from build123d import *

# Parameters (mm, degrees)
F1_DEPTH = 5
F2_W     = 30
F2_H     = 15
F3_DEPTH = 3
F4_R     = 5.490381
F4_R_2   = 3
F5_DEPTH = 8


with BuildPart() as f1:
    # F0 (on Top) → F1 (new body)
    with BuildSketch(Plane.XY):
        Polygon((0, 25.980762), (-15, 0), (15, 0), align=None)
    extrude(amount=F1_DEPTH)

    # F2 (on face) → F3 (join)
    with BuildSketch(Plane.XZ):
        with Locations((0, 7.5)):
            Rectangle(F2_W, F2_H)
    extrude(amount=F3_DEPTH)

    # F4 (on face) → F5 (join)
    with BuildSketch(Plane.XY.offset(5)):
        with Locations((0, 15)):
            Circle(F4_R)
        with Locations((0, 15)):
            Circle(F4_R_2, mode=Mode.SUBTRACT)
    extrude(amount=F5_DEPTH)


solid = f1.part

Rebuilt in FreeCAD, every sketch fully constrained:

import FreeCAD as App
import Part
import Sketcher

V = App.Vector
Q = App.Units.Quantity

doc = App.newDocument("Part")
body = doc.addObject("PartDesign::Body", "Body")

sketch1 = body.newObject("Sketcher::SketchObject", "Sketch")
sketch1.AttachmentSupport = (doc.getObject("XY_Plane"), [""])
sketch1.MapMode = "FlatFace"
sketch1.addGeometry(Part.LineSegment(V(0, 26, 0), V(-15, 0, 0)), False)
sketch1.addGeometry(Part.LineSegment(V(-15, 0, 0), V(15, 0, 0)), False)
sketch1.addGeometry(Part.LineSegment(V(15, 0, 0), V(0, 26, 0)), False)
sketch1.addConstraint(Sketcher.Constraint("Coincident", 0, 2, 1, 1))
sketch1.addConstraint(Sketcher.Constraint("Coincident", 1, 2, 2, 1))
sketch1.addConstraint(Sketcher.Constraint("Coincident", 2, 2, 0, 1))
sketch1.addConstraint(Sketcher.Constraint("Horizontal", 1))
sketch1.addConstraint(Sketcher.Constraint("Symmetric", 0, 2, 1, 2, -1, 1))
sketch1.addConstraint(Sketcher.Constraint("PointOnObject", 2, 2, -2))
sketch1.addConstraint(Sketcher.Constraint("DistanceX", 1, 1, 1, 2, Q("30 mm")))
sketch1.addConstraint(Sketcher.Constraint("Angle", 0, Q("-120 deg")))
pad1 = body.newObject("PartDesign::Pad", "Pad")
pad1.Profile = sketch1
pad1.Length = 5

sketch2 = body.newObject("Sketcher::SketchObject", "Sketch001")
sketch2.AttachmentSupport = (doc.getObject("XZ_Plane"), [""])
sketch2.MapMode = "FlatFace"
sketch2.addGeometry(Part.LineSegment(V(-15, 15, 0), V(-15, 0, 0)), False)
sketch2.addGeometry(Part.LineSegment(V(-15, 0, 0), V(15, 0, 0)), False)
sketch2.addGeometry(Part.LineSegment(V(15, 0, 0), V(15, 15, 0)), False)
sketch2.addGeometry(Part.LineSegment(V(15, 15, 0), V(-15, 15, 0)), False)
sketch2.addConstraint(Sketcher.Constraint("Coincident", 0, 2, 1, 1))
sketch2.addConstraint(Sketcher.Constraint("Coincident", 1, 2, 2, 1))
sketch2.addConstraint(Sketcher.Constraint("Coincident", 2, 2, 3, 1))
sketch2.addConstraint(Sketcher.Constraint("Coincident", 3, 2, 0, 1))
sketch2.addConstraint(Sketcher.Constraint("Vertical", 0))
sketch2.addConstraint(Sketcher.Constraint("Horizontal", 1))
sketch2.addConstraint(Sketcher.Constraint("Vertical", 2))
sketch2.addConstraint(Sketcher.Constraint("Horizontal", 3))
sketch2.addConstraint(Sketcher.Constraint("Symmetric", 0, 2, 1, 2, -1, 1))
sketch2.addConstraint(Sketcher.Constraint("DistanceX", 1, 1, 1, 2, Q("30 mm")))
sketch2.addConstraint(Sketcher.Constraint("DistanceY", 0, 2, 0, 1, Q("15 mm")))
pad2 = body.newObject("PartDesign::Pad", "Pad001")
pad2.Profile = sketch2
pad2.Length = 3

sketch3 = body.newObject("Sketcher::SketchObject", "Sketch002")
sketch3.AttachmentSupport = (doc.getObject("XY_Plane"), [""])
sketch3.MapMode = "FlatFace"
sketch3.AttachmentOffset = App.Placement(V(0, 0, 5), App.Rotation())
sketch3.addGeometry(Part.Circle(V(0, 15, 0), V(0, 0, 1), 5.5), False)
sketch3.addGeometry(Part.Circle(V(0, 15, 0), V(0, 0, 1), 3), False)
sketch3.addConstraint(Sketcher.Constraint("Coincident", 1, 3, 0, 3))
sketch3.addConstraint(Sketcher.Constraint("PointOnObject", 0, 3, -2))
sketch3.addConstraint(Sketcher.Constraint("Diameter", 1, Q("6 mm")))
sketch3.addConstraint(Sketcher.Constraint("DistanceY", -1, 1, 0, 3, Q("15 mm")))
sketch3.addConstraint(Sketcher.Constraint("Diameter", 0, Q("10.980762 mm")))
pad3 = body.newObject("PartDesign::Pad", "Pad002")
pad3.Profile = sketch3
pad3.Length = 8

doc.recompute()
